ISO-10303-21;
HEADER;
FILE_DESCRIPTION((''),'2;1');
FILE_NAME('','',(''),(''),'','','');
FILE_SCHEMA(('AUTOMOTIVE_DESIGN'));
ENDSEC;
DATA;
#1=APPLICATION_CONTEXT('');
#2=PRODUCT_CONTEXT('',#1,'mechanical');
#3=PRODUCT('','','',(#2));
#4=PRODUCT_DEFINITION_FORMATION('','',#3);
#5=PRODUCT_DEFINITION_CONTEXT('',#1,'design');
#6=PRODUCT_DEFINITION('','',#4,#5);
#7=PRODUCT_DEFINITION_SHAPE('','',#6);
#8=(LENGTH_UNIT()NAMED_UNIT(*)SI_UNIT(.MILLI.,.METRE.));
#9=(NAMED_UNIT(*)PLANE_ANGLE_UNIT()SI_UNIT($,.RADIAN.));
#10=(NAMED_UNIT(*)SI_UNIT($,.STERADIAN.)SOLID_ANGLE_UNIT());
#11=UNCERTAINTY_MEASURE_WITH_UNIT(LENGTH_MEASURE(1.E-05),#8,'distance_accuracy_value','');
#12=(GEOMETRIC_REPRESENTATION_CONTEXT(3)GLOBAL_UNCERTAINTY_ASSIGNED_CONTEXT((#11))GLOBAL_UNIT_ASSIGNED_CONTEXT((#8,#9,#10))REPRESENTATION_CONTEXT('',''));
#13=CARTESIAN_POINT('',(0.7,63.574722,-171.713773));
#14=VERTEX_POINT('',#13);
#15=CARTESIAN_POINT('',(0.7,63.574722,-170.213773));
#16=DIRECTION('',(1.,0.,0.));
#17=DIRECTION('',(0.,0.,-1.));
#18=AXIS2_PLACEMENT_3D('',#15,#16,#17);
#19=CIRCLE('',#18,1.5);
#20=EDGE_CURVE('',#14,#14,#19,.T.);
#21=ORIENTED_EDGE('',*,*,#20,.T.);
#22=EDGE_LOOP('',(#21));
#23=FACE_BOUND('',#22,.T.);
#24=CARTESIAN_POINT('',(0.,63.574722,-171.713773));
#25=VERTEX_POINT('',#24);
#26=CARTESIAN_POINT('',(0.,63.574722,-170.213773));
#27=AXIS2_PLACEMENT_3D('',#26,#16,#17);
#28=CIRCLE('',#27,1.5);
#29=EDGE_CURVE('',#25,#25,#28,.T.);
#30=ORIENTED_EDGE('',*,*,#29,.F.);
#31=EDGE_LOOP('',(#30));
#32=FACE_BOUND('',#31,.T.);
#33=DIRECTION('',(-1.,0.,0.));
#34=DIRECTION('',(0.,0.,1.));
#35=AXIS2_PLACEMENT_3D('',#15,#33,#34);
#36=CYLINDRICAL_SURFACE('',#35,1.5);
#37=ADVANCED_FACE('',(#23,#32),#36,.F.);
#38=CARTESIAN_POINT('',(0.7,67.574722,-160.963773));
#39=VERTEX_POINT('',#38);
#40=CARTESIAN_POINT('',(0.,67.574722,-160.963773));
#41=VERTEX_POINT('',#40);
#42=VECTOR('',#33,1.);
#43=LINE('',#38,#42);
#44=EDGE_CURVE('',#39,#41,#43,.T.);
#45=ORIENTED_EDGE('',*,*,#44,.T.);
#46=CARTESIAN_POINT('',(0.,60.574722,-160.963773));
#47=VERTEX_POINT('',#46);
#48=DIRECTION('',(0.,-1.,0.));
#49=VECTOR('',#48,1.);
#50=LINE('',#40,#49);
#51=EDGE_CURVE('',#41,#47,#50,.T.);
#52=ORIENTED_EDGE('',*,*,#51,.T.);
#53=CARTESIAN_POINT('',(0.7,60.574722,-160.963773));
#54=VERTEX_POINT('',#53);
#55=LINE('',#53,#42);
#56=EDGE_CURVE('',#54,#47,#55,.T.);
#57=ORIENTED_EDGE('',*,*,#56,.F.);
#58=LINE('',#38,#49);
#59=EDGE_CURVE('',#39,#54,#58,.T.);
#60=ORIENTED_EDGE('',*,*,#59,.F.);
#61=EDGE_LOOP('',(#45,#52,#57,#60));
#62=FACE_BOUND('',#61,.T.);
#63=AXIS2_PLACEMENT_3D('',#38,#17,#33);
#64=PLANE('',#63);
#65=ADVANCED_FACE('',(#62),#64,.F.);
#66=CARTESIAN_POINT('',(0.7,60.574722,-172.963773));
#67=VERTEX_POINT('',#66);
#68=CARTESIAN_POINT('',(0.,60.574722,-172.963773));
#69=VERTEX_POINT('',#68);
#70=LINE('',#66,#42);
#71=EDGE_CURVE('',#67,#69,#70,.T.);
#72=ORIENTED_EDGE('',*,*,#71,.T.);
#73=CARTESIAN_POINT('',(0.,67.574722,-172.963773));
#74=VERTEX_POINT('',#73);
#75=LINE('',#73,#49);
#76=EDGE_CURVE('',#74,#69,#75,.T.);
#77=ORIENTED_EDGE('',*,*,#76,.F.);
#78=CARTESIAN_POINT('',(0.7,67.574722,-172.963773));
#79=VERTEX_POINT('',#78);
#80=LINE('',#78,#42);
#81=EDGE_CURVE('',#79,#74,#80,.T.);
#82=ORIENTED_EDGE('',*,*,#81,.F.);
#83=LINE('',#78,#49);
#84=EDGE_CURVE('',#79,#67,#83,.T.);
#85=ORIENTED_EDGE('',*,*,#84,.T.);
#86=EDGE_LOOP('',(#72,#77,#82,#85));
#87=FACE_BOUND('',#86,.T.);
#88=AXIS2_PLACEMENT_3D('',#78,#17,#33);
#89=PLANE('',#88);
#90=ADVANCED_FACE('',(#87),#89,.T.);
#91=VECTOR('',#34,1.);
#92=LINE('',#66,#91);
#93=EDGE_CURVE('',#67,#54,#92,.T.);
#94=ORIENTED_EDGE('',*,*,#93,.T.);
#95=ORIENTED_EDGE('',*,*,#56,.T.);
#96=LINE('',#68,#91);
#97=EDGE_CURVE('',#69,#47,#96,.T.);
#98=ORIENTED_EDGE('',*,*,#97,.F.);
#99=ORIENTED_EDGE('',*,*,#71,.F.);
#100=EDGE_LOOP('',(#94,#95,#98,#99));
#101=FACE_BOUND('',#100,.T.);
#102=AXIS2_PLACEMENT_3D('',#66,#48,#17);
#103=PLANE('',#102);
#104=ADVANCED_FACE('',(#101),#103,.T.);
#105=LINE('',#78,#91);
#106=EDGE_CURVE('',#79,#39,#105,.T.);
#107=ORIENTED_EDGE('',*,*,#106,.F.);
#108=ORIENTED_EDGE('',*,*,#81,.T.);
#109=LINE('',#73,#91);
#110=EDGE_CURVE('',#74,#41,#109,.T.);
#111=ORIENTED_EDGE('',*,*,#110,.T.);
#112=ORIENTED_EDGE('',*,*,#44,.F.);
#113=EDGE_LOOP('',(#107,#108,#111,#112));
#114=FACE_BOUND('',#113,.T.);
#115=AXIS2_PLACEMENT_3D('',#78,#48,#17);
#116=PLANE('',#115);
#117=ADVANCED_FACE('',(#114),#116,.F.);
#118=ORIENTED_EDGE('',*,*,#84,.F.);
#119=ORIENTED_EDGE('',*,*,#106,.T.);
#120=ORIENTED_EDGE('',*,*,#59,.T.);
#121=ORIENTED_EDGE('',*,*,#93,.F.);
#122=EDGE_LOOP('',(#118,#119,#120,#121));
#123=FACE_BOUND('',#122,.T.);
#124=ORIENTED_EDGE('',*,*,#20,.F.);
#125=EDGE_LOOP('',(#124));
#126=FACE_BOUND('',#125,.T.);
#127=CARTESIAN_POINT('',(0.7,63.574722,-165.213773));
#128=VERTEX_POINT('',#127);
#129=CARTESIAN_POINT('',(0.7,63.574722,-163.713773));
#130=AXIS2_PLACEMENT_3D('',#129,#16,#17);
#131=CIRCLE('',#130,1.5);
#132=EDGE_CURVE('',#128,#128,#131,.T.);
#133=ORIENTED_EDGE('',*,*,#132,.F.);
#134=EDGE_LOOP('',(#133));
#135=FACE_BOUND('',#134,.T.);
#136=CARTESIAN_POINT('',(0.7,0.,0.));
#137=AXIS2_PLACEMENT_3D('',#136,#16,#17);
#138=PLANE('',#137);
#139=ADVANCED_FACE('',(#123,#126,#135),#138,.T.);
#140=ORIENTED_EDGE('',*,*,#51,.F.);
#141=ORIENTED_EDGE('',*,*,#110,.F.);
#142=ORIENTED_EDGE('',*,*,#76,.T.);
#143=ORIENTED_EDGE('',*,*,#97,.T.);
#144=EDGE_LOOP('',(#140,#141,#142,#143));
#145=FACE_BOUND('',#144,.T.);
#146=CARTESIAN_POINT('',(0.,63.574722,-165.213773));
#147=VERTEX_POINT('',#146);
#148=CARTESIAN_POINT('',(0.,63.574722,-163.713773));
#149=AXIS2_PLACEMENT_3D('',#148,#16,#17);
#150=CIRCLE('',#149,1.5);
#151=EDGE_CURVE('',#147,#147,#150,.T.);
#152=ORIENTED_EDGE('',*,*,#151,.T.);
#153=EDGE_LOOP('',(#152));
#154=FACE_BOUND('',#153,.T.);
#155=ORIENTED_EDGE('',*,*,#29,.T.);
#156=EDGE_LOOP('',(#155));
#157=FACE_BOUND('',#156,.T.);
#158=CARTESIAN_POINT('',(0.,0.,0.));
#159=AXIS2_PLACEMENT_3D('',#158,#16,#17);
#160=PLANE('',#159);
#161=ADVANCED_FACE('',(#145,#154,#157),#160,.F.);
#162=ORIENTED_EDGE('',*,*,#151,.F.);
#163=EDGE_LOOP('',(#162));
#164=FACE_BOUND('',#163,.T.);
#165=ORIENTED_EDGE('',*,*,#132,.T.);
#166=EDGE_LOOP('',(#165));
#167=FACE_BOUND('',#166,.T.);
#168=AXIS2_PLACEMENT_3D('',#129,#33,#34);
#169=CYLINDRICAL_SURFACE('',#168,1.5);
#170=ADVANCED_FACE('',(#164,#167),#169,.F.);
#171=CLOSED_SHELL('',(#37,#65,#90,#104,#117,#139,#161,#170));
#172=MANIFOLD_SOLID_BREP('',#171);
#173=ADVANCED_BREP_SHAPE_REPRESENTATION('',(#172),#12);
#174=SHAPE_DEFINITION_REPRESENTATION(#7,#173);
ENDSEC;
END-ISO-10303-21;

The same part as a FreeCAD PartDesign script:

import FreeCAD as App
import Part
import Sketcher

V = App.Vector

doc = App.newDocument("Part")
params = doc.addObject("Spreadsheet::Sheet", "Params")
for row, (alias, value) in enumerate([
    ("sketch1_diameter", "3 mm"),
    ("sketch1_width", "7 mm"),
    ("sketch1_height", "12 mm"),
    ("pad1_length", "0.7 mm"),
], start=1):
    params.set(f"A{row}", alias)
    params.set(f"B{row}", "=" + value)
    params.setAlias(f"B{row}", alias)

body = doc.addObject("PartDesign::Body", "Body")

# Sketch on YZ plane
sketch1 = body.newObject("Sketcher::SketchObject", "Sketch")
sketch1.AttachmentSupport = (doc.getObject("YZ_Plane"), [""])
sketch1.MapMode = "FlatFace"
sketch1.addGeometry(Part.LineSegment(V(67.6, -161, 0), V(60.6, -161, 0)), False)
sketch1.addGeometry(Part.LineSegment(V(60.6, -161, 0), V(60.6, -173, 0)), False)
sketch1.addGeometry(Part.LineSegment(V(60.6, -173, 0), V(67.6, -173, 0)), False)
sketch1.addGeometry(Part.LineSegment(V(67.6, -173, 0), V(67.6, -161, 0)), False)
sketch1.addGeometry(Part.Circle(V(63.6, -163.7, 0), V(0, 0, 1), 1.5), False)
sketch1.addGeometry(Part.Circle(V(63.6, -170.2, 0), V(0, 0, 1), 1.5), False)
sketch1.addConstraint(Sketcher.Constraint("Coincident", 0, 2, 1, 1))
sketch1.addConstraint(Sketcher.Constraint("Coincident", 1, 2, 2, 1))
sketch1.addConstraint(Sketcher.Constraint("Coincident", 2, 2, 3, 1))
sketch1.addConstraint(Sketcher.Constraint("Coincident", 3, 2, 0, 1))
sketch1.addConstraint(Sketcher.Constraint("Horizontal", 0))
sketch1.addConstraint(Sketcher.Constraint("Vertical", 1))
sketch1.addConstraint(Sketcher.Constraint("Horizontal", 2))
sketch1.addConstraint(Sketcher.Constraint("Vertical", 3))
sketch1.addConstraint(Sketcher.Constraint("Equal", 4, 5))
sketch1.addConstraint(Sketcher.Constraint("Vertical", 4, 3, 5, 3))
sketch1.addConstraint(Sketcher.Constraint("Diameter", 4, 3.0))
sketch1.addConstraint(Sketcher.Constraint("DistanceX", 0, 2, 0, 1, 7.0))
sketch1.addConstraint(Sketcher.Constraint("DistanceY", 1, 2, 1, 1, 12.0))
sketch1.addConstraint(Sketcher.Constraint("DistanceX", 0, 2, 4, 3, 3.0))
sketch1.addConstraint(Sketcher.Constraint("DistanceY", 5, 3, 4, 3, 6.5))
sketch1.addConstraint(Sketcher.Constraint("DistanceY", 4, 3, 0, 2, 2.75))
sketch1.addConstraint(Sketcher.Constraint("DistanceX", -1, 1, 4, 3, 63.574722))
sketch1.addConstraint(Sketcher.Constraint("DistanceY", 4, 3, -1, 1, 163.713773))
sketch1.setExpression("Constraints[10]", "Params.sketch1_diameter")
sketch1.setExpression("Constraints[11]", "Params.sketch1_width")
sketch1.setExpression("Constraints[12]", "Params.sketch1_height")
pad1 = body.newObject("PartDesign::Pad", "Pad")
pad1.Profile = sketch1
pad1.setExpression("Length", "Params.pad1_length")

doc.recompute()
